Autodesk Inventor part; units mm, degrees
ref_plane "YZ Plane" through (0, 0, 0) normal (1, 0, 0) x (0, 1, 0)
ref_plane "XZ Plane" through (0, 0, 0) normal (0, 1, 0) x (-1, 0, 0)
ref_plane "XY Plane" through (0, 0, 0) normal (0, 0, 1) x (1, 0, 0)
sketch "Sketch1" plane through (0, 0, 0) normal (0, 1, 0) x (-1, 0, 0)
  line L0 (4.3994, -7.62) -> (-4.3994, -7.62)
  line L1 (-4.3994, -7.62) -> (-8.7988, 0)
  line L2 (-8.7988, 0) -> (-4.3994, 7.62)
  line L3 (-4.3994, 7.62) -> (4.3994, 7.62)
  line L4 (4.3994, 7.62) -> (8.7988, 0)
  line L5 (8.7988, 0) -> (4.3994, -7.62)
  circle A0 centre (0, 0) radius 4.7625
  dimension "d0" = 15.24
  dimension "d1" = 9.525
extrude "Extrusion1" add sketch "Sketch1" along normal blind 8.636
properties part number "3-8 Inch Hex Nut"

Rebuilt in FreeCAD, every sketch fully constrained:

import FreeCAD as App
import Part
import Sketcher
Q = App.Units.Quantity

doc = App.newDocument("Part")
body = doc.addObject("PartDesign::Body", "Body")

# Sketch on XZ plane
sketch1 = body.newObject("Sketcher::SketchObject", "Sketch")
sketch1.AttachmentSupport = (doc.getObject("XZ_Plane"), [""])
sketch1.MapMode = "FlatFace"
sketch1.addGeometry([
    Part.LineSegment(App.Vector(4.4, -7.6, 0), App.Vector(-4.4, -7.6, 0)),  # 0
    Part.LineSegment(App.Vector(-4.4, -7.6, 0), App.Vector(-8.8, 0, 0)),  # 1
    Part.LineSegment(App.Vector(-8.8, 0, 0), App.Vector(-4.4, 7.6, 0)),  # 2
    Part.LineSegment(App.Vector(-4.4, 7.6, 0), App.Vector(4.4, 7.6, 0)),  # 3
    Part.LineSegment(App.Vector(4.4, 7.6, 0), App.Vector(8.8, 0, 0)),  # 4
    Part.LineSegment(App.Vector(8.8, 0, 0), App.Vector(4.4, -7.6, 0)),  # 5
    Part.Circle(App.Vector(0, 0, 0), App.Vector(0, 0, 1), 4.8),  # 6
], False)
sketch1.addConstraint([
    Sketcher.Constraint("Coincident", 0, 2, 1, 1),
    Sketcher.Constraint("Coincident", 1, 2, 2, 1),
    Sketcher.Constraint("Coincident", 2, 2, 3, 1),
    Sketcher.Constraint("Coincident", 3, 2, 4, 1),
    Sketcher.Constraint("Coincident", 4, 2, 5, 1),
    Sketcher.Constraint("Coincident", 5, 2, 0, 1),
    Sketcher.Constraint("Horizontal", 0),
    Sketcher.Constraint("Horizontal", 3),
    Sketcher.Constraint("Coincident", 6, 3, -1, 1),
    Sketcher.Constraint("Symmetric", 0, 2, 3, 2, -1, 1),
    Sketcher.Constraint("Symmetric", 1, 2, 4, 2, -1, 1),
    Sketcher.Constraint("PointOnObject", 1, 2, -1),
    Sketcher.Constraint("Parallel", 2, 5),
    Sketcher.Constraint("Vertical", 0, 2, 2, 2),
    Sketcher.Constraint("Diameter", 6, Q("0.375 in")),
    Sketcher.Constraint("DistanceY", 0, 2, 2, 2, Q("0.6 in")),
    Sketcher.Constraint("Angle", 1, Q("120 deg")),
    Sketcher.Constraint("DistanceX", 0, 2, 0, 1, Q("0.3464 in")),
])
pad1 = body.newObject("PartDesign::Pad", "Pad")
pad1.Profile = sketch1
pad1.Length = Q("0.34 in")
pad1.Reversed = True

doc.recompute()
